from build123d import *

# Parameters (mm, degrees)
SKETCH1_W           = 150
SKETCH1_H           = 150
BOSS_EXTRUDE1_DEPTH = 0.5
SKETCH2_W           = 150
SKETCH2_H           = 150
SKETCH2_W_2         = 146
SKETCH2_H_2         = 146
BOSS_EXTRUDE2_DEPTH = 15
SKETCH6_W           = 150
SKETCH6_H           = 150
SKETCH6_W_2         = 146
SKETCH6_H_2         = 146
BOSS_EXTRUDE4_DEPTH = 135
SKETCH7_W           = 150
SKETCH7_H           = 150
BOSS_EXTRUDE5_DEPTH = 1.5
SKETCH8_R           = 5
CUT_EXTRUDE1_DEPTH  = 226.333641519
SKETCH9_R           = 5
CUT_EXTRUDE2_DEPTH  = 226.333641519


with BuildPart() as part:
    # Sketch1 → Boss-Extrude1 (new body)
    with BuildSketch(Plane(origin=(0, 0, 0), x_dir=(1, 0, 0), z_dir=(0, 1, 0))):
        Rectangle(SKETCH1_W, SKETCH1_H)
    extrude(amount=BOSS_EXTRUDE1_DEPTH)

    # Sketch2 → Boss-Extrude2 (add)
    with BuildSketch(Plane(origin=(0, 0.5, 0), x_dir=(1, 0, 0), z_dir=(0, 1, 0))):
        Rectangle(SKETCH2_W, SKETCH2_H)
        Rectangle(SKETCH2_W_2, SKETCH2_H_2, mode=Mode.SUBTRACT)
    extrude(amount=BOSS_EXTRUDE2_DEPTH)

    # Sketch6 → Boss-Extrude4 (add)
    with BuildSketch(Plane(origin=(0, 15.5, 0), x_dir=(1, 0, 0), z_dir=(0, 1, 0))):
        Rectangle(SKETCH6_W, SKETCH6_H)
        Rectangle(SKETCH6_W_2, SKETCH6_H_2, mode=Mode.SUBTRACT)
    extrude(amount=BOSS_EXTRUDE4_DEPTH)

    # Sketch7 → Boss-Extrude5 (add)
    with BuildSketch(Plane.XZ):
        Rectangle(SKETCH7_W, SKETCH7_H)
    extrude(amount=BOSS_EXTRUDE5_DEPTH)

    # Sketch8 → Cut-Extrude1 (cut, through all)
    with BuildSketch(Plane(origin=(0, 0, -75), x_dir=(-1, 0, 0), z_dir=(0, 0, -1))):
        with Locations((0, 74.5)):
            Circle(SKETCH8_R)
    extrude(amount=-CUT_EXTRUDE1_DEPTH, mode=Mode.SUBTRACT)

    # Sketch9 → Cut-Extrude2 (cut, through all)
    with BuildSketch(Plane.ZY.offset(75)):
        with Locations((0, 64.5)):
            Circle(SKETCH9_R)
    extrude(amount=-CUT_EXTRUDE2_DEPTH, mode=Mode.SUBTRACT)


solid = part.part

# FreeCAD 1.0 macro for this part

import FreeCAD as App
import Part
import Sketcher

V = App.Vector


def add_polygon(sketch, points):
    """Adds a closed chain of lines whose ends are joined by coincident constraints."""
    first, n = sketch.GeometryCount, len(points)
    for a, b in zip(points, points[1:] + points[:1]):
        sketch.addGeometry(Part.LineSegment(App.Vector(*a, 0), App.Vector(*b, 0)), False)
    for i in range(n):
        sketch.addConstraint(Sketcher.Constraint("Coincident", first + i, 2, first + (i + 1) % n, 1))

doc = App.newDocument("Part")
body = doc.addObject("PartDesign::Body", "Body")

# Sketch on XZ plane
sketch1 = doc.addObject("Sketcher::SketchObject", "Sketch")
body.addObject(sketch1)
sketch1.AttachmentSupport = (doc.XZ_Plane, [""])
sketch1.MapMode = "FlatFace"
add_polygon(sketch1, [(-75, -75), (-75, 75), (75, 75), (75, -75)])  # lines 0-3
sketch1.addConstraint([
    Sketcher.Constraint("Vertical", 0),
    Sketcher.Constraint("Horizontal", 1),
    Sketcher.Constraint("Vertical", 2),
    Sketcher.Constraint("Horizontal", 3),
    Sketcher.Constraint("Symmetric", 0, 2, 2, 2, -1, 1),
    Sketcher.Constraint("Equal", 3, 0),
    Sketcher.Constraint("DistanceX", 1, 1, 1, 2, 150.0),
])
pad1 = doc.addObject("PartDesign::Pad", "Pad")
body.addObject(pad1)
pad1.Profile = sketch1
pad1.Length = 0.5
pad1.Reversed = True

# Sketch on XZ plane
sketch2 = doc.addObject("Sketcher::SketchObject", "Sketch001")
body.addObject(sketch2)
sketch2.AttachmentSupport = (doc.XZ_Plane, [""])
sketch2.MapMode = "FlatFace"
sketch2.AttachmentOffset = App.Placement(V(0, 0, -0.5), App.Rotation())
add_polygon(sketch2, [(-75, -75), (-75, 75), (75, 75), (75, -75)])  # lines 0-3
add_polygon(sketch2, [(73, 73), (-73, 73), (-73, -73), (73, -73)])  # lines 4-7
sketch2.addConstraint([
    Sketcher.Constraint("Vertical", 0),
    Sketcher.Constraint("Horizontal", 1),
    Sketcher.Constraint("Vertical", 2),
    Sketcher.Constraint("Horizontal", 3),
    Sketcher.Constraint("Horizontal", 4),
    Sketcher.Constraint("Vertical", 5),
    Sketcher.Constraint("Horizontal", 6),
    Sketcher.Constraint("Vertical", 7),
    Sketcher.Constraint("Symmetric", 0, 2, 2, 2, -1, 1),
    Sketcher.Constraint("Symmetric", 4, 2, 6, 2, -1, 1),
    Sketcher.Constraint("Equal", 3, 0),
    Sketcher.Constraint("Equal", 6, 5),
    Sketcher.Constraint("DistanceX", 1, 1, 1, 2, 150.0),
    Sketcher.Constraint("DistanceX", 4, 2, 4, 1, 146.0),
])
pad2 = doc.addObject("PartDesign::Pad", "Pad001")
body.addObject(pad2)
pad2.Profile = sketch2
pad2.Length = 15
pad2.Reversed = True

# Sketch on XZ plane
sketch3 = doc.addObject("Sketcher::SketchObject", "Sketch002")
body.addObject(sketch3)
sketch3.AttachmentSupport = (doc.XZ_Plane, [""])
sketch3.MapMode = "FlatFace"
sketch3.AttachmentOffset = App.Placement(V(0, 0, -15.5), App.Rotation())
add_polygon(sketch3, [(-75, -75), (-75, 75), (75, 75), (75, -75)])  # lines 0-3
add_polygon(sketch3, [(73, 73), (-73, 73), (-73, -73), (73, -73)])  # lines 4-7
sketch3.addConstraint([
    Sketcher.Constraint("Vertical", 0),
    Sketcher.Constraint("Horizontal", 1),
    Sketcher.Constraint("Vertical", 2),
    Sketcher.Constraint("Horizontal", 3),
    Sketcher.Constraint("Horizontal", 4),
    Sketcher.Constraint("Vertical", 5),
    Sketcher.Constraint("Horizontal", 6),
    Sketcher.Constraint("Vertical", 7),
    Sketcher.Constraint("Symmetric", 0, 2, 2, 2, -1, 1),
    Sketcher.Constraint("Symmetric", 4, 2, 6, 2, -1, 1),
    Sketcher.Constraint("Equal", 3, 0),
    Sketcher.Constraint("Equal", 6, 5),
    Sketcher.Constraint("DistanceX", 1, 1, 1, 2, 150.0),
    Sketcher.Constraint("DistanceX", 4, 2, 4, 1, 146.0),
])
pad3 = doc.addObject("PartDesign::Pad", "Pad002")
body.addObject(pad3)
pad3.Profile = sketch3
pad3.Length = 135
pad3.Reversed = True

# Sketch on XZ plane
sketch4 = doc.addObject("Sketcher::SketchObject", "Sketch003")
body.addObject(sketch4)
sketch4.AttachmentSupport = (doc.XZ_Plane, [""])
sketch4.MapMode = "FlatFace"
add_polygon(sketch4, [(-75, 75), (-75, -75), (75, -75), (75, 75)])  # lines 0-3
sketch4.addConstraint([
    Sketcher.Constraint("Vertical", 0),
    Sketcher.Constraint("Horizontal", 1),
    Sketcher.Constraint("Vertical", 2),
    Sketcher.Constraint("Horizontal", 3),
    Sketcher.Constraint("Symmetric", 0, 2, 2, 2, -1, 1),
    Sketcher.Constraint("Equal", 3, 0),
    Sketcher.Constraint("DistanceX", 1, 1, 1, 2, 150.0),
])
pad4 = doc.addObject("PartDesign::Pad", "Pad003")
body.addObject(pad4)
pad4.Profile = sketch4
pad4.Length = 1.5

# Sketch on XY plane
sketch5 = doc.addObject("Sketcher::SketchObject", "Sketch004")
body.addObject(sketch5)
sketch5.AttachmentSupport = (doc.XY_Plane, [""])
sketch5.MapMode = "FlatFace"
sketch5.AttachmentOffset = App.Placement(V(0, 0, -75), App.Rotation())
sketch5.addGeometry(Part.Circle(V(0, 74, 0), V(0, 0, 1), 5), False)
sketch5.addConstraint([
    Sketcher.Constraint("PointOnObject", 0, 3, -2),
    Sketcher.Constraint("Diameter", 0, 10.0),
    Sketcher.Constraint("DistanceY", -1, 1, 0, 3, 74.5),
])
pocket1 = doc.addObject("PartDesign::Pocket", "Pocket")
body.addObject(pocket1)
pocket1.Profile = sketch5
pocket1.Type = "ThroughAll"
pocket1.Reversed = True

# Sketch on YZ plane
sketch6 = doc.addObject("Sketcher::SketchObject", "Sketch005")
body.addObject(sketch6)
sketch6.AttachmentSupport = (doc.YZ_Plane, [""])
sketch6.MapMode = "FlatFace"
sketch6.AttachmentOffset = App.Placement(V(0, 0, -75), App.Rotation())
sketch6.addGeometry(Part.Circle(V(64, 0, 0), V(0, 0, 1), 5), False)
sketch6.addConstraint([
    Sketcher.Constraint("PointOnObject", 0, 3, -1),
    Sketcher.Constraint("Diameter", 0, 10.0),
    Sketcher.Constraint("DistanceX", -1, 1, 0, 3, 64.5),
])
pocket2 = doc.addObject("PartDesign::Pocket", "Pocket001")
body.addObject(pocket2)
pocket2.Profile = sketch6
pocket2.Type = "ThroughAll"
pocket2.Reversed = True

doc.recompute()
